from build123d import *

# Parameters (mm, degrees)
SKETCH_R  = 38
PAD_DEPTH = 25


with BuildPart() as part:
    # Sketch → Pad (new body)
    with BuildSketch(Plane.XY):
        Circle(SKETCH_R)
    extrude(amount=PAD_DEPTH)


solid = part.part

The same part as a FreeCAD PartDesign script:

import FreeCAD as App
import Part
import Sketcher

V = App.Vector
Q = App.Units.Quantity

doc = App.newDocument("Part")
body = doc.addObject("PartDesign::Body", "Body")

sketch1 = body.newObject("Sketcher::SketchObject", "Sketch")
sketch1.AttachmentSupport = (doc.getObject("XY_Plane"), [""])
sketch1.MapMode = "FlatFace"
sketch1.addGeometry(Part.Circle(V(0, 0, 0), V(0, 0, 1), 38), False)
sketch1.addConstraint(Sketcher.Constraint("Coincident", 0, 3, -1, 1))
sketch1.addConstraint(Sketcher.Constraint("Diameter", 0, Q("76 mm")))
pad1 = body.newObject("PartDesign::Pad", "Pad")
pad1.Profile = sketch1
pad1.Length = 25

doc.recompute()
